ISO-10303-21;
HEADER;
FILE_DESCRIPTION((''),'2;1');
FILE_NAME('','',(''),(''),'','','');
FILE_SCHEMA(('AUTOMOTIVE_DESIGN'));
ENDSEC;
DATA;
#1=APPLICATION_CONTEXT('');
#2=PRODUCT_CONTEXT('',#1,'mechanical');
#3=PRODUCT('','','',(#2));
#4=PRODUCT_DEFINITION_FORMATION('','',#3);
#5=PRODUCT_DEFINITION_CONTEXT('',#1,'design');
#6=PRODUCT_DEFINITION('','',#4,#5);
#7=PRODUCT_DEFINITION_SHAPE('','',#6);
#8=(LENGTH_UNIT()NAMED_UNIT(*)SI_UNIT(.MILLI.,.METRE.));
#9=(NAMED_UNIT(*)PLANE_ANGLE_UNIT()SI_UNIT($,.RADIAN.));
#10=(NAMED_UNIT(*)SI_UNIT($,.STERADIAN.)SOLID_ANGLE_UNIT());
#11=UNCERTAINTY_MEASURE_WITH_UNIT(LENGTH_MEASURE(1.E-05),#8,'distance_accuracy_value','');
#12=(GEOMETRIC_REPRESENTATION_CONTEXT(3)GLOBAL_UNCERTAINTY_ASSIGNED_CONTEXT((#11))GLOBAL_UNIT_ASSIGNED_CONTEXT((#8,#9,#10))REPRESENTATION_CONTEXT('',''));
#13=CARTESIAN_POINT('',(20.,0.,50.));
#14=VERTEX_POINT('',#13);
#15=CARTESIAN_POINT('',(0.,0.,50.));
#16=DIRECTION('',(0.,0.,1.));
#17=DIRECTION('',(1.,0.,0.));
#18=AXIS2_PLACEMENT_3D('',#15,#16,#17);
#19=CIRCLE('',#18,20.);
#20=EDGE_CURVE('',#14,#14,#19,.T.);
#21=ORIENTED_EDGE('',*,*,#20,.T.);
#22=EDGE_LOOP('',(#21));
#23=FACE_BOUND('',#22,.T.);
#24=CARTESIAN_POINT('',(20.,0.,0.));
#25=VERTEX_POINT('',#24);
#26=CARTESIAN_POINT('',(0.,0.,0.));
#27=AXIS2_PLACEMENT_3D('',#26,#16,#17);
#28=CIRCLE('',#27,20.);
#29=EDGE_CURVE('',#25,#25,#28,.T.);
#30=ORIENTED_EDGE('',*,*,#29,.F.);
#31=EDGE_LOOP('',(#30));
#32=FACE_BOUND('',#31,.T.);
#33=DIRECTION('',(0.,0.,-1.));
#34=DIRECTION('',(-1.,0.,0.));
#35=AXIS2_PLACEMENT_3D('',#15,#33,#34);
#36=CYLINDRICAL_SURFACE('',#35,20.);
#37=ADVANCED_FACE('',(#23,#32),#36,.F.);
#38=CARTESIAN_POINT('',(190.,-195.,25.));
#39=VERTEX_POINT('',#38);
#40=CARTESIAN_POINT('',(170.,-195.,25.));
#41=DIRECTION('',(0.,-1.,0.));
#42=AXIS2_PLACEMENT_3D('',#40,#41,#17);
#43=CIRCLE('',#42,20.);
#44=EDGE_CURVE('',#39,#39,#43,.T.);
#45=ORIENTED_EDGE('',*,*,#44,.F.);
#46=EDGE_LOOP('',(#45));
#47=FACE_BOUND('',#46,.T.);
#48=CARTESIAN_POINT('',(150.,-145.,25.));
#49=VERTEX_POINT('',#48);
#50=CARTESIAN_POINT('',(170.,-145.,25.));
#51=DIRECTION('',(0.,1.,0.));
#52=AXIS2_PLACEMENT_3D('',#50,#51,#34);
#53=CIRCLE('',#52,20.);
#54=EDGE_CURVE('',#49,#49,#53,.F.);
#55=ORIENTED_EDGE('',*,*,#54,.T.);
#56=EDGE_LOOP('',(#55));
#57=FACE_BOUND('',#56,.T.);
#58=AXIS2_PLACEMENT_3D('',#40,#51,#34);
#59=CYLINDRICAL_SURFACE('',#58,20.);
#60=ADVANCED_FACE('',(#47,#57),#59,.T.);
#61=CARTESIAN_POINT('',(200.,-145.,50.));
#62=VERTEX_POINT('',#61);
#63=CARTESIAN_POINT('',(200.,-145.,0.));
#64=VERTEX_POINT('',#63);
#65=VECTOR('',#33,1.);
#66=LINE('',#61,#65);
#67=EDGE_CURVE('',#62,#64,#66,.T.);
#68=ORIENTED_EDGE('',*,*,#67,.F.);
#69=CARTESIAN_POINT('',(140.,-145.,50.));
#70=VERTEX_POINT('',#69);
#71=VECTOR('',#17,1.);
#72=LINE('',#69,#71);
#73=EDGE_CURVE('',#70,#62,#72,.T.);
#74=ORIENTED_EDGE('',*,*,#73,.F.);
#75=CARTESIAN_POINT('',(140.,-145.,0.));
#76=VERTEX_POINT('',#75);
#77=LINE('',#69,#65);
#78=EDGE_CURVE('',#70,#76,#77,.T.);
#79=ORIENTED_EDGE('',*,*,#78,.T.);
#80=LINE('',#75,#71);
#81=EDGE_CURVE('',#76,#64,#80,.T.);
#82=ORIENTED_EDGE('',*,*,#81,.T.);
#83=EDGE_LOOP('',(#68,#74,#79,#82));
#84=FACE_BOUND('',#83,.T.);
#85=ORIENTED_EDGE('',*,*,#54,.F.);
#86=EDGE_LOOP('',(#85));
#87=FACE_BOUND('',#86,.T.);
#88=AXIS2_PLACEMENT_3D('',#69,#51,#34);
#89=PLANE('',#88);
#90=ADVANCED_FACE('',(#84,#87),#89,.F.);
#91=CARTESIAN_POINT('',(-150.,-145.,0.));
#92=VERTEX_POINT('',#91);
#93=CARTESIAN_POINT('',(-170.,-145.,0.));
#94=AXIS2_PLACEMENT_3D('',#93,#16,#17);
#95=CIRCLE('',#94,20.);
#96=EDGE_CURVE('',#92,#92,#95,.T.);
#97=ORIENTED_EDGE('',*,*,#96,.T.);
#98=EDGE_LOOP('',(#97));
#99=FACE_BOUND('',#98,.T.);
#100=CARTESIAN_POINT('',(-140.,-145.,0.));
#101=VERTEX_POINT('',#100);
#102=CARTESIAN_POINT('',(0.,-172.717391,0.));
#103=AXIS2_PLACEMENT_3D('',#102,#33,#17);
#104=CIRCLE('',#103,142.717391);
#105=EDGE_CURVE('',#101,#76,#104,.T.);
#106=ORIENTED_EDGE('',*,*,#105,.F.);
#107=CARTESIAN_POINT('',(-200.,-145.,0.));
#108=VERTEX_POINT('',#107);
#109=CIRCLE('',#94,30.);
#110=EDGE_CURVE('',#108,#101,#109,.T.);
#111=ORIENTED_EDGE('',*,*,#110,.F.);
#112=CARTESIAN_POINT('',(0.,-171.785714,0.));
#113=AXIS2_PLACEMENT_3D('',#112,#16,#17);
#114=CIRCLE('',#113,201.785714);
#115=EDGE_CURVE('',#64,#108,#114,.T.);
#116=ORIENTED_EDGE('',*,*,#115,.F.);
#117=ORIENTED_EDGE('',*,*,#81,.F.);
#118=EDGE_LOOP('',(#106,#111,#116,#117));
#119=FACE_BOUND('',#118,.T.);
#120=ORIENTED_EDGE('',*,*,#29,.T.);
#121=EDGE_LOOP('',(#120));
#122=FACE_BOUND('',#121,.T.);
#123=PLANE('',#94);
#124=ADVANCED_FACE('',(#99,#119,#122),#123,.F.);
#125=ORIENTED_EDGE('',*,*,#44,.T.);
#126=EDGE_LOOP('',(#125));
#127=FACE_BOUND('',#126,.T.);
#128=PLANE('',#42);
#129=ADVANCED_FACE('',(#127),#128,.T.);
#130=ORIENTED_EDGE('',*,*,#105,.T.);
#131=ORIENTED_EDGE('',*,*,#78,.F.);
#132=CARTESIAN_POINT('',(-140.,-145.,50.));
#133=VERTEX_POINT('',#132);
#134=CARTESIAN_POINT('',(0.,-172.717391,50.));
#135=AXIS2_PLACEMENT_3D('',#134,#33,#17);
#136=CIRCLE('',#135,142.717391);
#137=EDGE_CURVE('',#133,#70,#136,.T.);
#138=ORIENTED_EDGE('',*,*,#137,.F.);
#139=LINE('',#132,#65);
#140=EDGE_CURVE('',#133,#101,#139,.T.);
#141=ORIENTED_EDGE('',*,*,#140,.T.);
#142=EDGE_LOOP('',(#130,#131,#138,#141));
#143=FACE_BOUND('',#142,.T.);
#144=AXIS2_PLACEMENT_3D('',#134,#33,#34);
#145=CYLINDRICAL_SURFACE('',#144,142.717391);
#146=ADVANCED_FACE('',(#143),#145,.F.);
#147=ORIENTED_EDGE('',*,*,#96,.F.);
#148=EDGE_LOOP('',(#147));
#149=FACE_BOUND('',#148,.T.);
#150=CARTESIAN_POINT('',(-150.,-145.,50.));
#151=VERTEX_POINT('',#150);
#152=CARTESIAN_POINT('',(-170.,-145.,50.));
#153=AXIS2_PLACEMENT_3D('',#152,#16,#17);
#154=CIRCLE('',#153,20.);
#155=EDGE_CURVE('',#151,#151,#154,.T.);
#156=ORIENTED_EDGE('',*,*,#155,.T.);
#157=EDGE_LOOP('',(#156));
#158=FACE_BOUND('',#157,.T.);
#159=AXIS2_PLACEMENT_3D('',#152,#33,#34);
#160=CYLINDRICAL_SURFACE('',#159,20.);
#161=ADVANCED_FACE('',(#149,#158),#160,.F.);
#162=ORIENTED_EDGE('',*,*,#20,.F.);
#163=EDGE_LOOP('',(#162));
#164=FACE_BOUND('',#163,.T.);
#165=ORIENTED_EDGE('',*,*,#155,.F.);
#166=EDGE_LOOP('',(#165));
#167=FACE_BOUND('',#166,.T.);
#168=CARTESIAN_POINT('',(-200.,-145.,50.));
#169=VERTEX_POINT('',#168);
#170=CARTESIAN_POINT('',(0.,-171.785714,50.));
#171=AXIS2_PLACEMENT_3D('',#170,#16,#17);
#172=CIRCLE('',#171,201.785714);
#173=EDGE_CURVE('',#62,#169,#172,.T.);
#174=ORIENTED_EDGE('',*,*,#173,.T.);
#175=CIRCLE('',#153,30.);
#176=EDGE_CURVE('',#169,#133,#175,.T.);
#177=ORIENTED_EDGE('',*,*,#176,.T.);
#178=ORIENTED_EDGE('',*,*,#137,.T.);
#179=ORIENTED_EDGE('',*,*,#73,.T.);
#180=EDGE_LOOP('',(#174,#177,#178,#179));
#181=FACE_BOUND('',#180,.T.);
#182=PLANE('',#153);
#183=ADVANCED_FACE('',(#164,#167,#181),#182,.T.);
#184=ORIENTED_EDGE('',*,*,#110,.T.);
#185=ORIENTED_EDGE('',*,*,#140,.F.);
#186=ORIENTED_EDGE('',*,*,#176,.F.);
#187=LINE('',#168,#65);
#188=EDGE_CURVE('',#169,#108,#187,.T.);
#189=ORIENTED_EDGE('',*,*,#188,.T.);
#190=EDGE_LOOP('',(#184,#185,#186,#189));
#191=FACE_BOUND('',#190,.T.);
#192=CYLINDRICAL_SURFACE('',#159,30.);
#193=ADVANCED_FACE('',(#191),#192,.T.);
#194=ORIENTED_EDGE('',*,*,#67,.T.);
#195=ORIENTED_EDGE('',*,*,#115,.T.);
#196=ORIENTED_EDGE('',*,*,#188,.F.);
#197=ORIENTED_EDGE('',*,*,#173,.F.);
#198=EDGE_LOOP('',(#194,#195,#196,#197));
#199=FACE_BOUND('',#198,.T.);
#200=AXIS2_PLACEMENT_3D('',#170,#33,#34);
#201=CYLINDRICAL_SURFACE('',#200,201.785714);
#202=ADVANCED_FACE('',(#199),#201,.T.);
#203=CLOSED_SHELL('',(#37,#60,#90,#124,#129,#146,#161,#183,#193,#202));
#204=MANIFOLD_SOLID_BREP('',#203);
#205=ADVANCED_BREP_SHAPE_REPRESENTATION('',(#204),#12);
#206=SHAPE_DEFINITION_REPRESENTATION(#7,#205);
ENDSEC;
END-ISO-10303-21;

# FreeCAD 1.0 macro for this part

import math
import FreeCAD as App
import Part
import Sketcher
from FreeCAD import Vector

doc = App.newDocument("Part")
body = doc.addObject("PartDesign::Body", "Body")

sketch1 = body.newObject("Sketcher::SketchObject", "Sketch")
sketch1.AttachmentSupport = (doc.getObject("XY_Plane"), [""])
sketch1.MapMode = "FlatFace"
sketch1.addGeometry([
    Part.LineSegment(Vector(140, -145, 0), Vector(200, -145, 0)),
    Part.ArcOfCircle(Part.Circle(Vector(0, -172, 0), Vector(0, 0, 1), 202), math.radians(8), math.radians(172)),
    Part.ArcOfCircle(Part.Circle(Vector(-170, -145, 0), Vector(0, 0, 1), 30), math.radians(180), math.radians(360)),
    Part.ArcOfCircle(Part.Circle(Vector(0, -173, 0), Vector(0, 0, 1), 143), math.radians(11), math.radians(169)),
    Part.Circle(Vector(-170, -145, 0), Vector(0, 0, 1), 20),
    Part.Circle(Vector(0, 0, 0), Vector(0, 0, 1), 20),
], False)
sketch1.addConstraint([
    Sketcher.Constraint("Coincident", 0, 2, 1, 1),
    Sketcher.Constraint("Coincident", 1, 2, 2, 1),
    Sketcher.Constraint("Coincident", 2, 2, 3, 2),
    Sketcher.Constraint("Coincident", 3, 1, 0, 1),
    Sketcher.Constraint("Horizontal", 0),
    Sketcher.Constraint("Coincident", 5, 3, -1, 1),
    Sketcher.Constraint("Coincident", 4, 3, 2, 3),
    Sketcher.Constraint("Equal", 4, 5),
    Sketcher.Constraint("Symmetric", 0, 2, 1, 2, -2),
    Sketcher.Constraint("Symmetric", 2, 2, 3, 1, -2),
    Sketcher.Constraint("Horizontal", 4, 3, 0, 2),
    Sketcher.Constraint("Diameter", 4, 40.0),
    Sketcher.Constraint("Radius", 2, 30.0),
    Sketcher.Constraint("DistanceX", 2, 3, -1, 1, 170.0),
    Sketcher.Constraint("DistanceY", 2, 3, -1, 1, 145.0),
    Sketcher.Constraint("Radius", 3, 142.717391),
    Sketcher.Constraint("Radius", 1, 201.785714),
])
pad1 = body.newObject("PartDesign::Pad", "Pad")
pad1.Profile = sketch1
pad1.Length = 50

sketch2 = body.newObject("Sketcher::SketchObject", "Sketch001")
sketch2.AttachmentSupport = (doc.getObject("XZ_Plane"), [""])
sketch2.MapMode = "FlatFace"
sketch2.AttachmentOffset = App.Placement(Vector(0, 0, 145), App.Rotation())
sketch2.addGeometry(Part.Circle(Vector(170, 25, 0), Vector(0, 0, 1), 20), False)
sketch2.addConstraint([
    Sketcher.Constraint("Diameter", 0, 40.0),
    Sketcher.Constraint("DistanceX", -1, 1, 0, 3, 170.0),
    Sketcher.Constraint("DistanceY", -1, 1, 0, 3, 25.0),
])
pad2 = body.newObject("PartDesign::Pad", "Pad001")
pad2.Profile = sketch2
pad2.Length = 50

doc.recompute()
